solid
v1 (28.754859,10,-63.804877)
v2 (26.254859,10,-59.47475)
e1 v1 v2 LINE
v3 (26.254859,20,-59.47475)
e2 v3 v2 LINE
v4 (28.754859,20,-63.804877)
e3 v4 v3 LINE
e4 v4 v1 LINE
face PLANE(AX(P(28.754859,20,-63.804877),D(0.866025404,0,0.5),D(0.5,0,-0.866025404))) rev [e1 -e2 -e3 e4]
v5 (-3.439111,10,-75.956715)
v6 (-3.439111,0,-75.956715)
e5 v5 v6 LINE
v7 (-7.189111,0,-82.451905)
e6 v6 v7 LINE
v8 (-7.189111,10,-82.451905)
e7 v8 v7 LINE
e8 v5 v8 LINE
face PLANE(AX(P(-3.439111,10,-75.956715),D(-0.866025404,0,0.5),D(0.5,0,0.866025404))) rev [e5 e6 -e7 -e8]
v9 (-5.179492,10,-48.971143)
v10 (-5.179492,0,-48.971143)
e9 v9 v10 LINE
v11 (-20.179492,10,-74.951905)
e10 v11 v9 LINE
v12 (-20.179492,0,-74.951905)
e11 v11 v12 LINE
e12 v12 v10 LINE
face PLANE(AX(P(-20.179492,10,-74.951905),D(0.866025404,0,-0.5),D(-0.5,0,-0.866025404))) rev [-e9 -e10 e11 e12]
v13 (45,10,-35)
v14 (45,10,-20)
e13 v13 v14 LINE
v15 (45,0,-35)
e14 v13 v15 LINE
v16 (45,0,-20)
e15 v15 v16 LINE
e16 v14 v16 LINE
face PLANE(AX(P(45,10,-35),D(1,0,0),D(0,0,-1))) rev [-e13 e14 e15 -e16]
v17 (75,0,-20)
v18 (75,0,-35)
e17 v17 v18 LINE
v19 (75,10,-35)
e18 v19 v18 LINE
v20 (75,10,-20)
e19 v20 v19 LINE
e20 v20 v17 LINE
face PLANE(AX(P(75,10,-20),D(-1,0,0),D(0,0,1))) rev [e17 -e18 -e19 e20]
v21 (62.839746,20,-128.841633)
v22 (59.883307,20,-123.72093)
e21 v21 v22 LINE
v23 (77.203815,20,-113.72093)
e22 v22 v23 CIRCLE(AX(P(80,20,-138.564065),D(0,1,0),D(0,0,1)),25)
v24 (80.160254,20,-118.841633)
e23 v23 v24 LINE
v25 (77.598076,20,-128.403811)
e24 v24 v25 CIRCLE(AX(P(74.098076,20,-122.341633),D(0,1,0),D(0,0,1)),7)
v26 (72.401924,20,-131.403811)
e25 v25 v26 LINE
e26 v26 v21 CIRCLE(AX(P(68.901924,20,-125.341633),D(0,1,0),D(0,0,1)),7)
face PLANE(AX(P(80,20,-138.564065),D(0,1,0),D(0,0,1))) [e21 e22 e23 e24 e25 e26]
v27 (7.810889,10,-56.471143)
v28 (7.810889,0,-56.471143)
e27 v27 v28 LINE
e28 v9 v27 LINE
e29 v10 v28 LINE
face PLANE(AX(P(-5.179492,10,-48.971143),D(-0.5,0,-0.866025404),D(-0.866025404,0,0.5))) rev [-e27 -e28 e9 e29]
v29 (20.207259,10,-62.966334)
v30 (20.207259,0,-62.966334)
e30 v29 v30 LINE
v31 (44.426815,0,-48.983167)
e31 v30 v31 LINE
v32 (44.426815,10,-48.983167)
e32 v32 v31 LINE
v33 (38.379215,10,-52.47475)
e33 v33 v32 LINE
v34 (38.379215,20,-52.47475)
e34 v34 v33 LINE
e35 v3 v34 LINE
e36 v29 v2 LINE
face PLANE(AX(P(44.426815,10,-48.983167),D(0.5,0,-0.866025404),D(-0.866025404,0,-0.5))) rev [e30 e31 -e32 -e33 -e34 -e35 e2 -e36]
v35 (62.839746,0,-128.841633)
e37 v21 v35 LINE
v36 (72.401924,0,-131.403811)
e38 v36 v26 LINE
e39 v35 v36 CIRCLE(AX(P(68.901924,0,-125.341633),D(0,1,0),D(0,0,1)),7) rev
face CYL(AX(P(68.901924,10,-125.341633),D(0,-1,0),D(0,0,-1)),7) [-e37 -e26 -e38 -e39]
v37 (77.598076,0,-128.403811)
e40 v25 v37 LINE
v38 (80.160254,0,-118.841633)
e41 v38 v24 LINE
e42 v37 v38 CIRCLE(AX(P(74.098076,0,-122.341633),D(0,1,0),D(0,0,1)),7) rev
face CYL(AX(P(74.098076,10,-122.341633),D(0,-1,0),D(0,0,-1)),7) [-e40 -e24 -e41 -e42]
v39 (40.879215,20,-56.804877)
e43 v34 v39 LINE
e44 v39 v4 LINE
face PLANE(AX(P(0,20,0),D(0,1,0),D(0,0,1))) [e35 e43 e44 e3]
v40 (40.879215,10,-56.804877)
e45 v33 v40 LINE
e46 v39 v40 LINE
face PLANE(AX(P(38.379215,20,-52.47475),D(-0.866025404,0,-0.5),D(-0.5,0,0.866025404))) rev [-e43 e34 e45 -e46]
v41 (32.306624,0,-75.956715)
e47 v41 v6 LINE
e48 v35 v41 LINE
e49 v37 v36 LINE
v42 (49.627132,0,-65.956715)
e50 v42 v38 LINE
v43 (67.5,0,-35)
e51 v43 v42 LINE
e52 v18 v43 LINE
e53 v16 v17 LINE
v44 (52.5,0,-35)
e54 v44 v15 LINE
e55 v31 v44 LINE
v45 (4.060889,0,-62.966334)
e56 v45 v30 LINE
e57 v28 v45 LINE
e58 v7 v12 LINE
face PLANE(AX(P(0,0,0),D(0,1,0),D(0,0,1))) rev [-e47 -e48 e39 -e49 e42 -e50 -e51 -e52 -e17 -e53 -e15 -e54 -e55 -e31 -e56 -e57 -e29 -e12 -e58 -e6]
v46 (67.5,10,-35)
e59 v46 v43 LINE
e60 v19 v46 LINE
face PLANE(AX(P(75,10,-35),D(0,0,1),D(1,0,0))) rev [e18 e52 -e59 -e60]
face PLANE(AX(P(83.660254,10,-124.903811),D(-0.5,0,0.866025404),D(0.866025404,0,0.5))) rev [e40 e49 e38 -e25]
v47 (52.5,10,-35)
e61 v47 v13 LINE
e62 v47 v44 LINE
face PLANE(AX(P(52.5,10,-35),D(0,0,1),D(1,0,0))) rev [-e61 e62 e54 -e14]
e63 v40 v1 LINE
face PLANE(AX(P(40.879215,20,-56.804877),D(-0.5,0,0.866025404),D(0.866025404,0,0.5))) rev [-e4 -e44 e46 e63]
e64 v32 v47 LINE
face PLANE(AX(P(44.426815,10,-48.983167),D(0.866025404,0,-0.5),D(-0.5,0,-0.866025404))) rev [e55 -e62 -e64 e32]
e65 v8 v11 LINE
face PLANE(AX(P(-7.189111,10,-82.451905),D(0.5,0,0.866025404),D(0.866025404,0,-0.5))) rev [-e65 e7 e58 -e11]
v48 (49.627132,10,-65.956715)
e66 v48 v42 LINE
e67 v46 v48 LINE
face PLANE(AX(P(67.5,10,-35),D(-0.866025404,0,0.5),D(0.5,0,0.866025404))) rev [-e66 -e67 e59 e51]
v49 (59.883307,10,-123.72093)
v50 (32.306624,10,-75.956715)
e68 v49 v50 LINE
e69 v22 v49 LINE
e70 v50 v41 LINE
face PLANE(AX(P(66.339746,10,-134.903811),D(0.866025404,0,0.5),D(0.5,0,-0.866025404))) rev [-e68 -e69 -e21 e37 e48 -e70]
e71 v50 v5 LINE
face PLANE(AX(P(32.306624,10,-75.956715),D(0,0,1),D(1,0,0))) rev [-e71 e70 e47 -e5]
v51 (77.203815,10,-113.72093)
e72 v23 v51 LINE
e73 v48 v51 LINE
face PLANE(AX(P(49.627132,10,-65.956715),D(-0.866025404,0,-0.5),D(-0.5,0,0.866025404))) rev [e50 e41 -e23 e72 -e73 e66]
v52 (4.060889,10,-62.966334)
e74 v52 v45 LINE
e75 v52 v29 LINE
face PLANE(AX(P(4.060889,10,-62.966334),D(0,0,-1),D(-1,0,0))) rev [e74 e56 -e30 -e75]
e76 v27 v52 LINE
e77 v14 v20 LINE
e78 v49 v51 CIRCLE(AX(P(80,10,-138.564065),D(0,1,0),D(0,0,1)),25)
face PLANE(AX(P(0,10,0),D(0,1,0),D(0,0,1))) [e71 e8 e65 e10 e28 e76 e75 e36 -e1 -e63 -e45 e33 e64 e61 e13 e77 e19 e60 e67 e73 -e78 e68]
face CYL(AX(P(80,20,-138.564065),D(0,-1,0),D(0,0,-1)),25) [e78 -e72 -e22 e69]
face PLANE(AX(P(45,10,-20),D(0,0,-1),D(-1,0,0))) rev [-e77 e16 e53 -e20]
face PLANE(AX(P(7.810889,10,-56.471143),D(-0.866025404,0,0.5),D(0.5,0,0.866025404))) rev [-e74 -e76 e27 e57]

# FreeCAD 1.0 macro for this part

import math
import FreeCAD as App
import Part
import Sketcher
Q = App.Units.Quantity


def edges_at(feature, points):
    """Names of the edges that pass closest to the given points."""
    edges = feature.Shape.Edges
    near = lambda p: min(range(len(edges)), key=lambda i: edges[i].distToShape(Part.Vertex(*p))[0])
    return sorted({f"Edge{near(p) + 1}" for p in points})

doc = App.newDocument("Part")
body = doc.addObject("PartDesign::Body", "Body")

# Sketch on XZ plane
sketch1 = doc.addObject("Sketcher::SketchObject", "Sketch")
body.addObject(sketch1)
sketch1.AttachmentSupport = (doc.XZ_Plane, [""])
sketch1.MapMode = "FlatFace"
sketch1.addGeometry([
    Part.LineSegment(App.Vector(-20.179492, -74.951905, 0), App.Vector(-5.179492, -48.971143, 0)),  # 0
    Part.LineSegment(App.Vector(-5.179492, -48.971143, 0), App.Vector(7.810889, -56.471143, 0)),  # 1
    Part.LineSegment(App.Vector(7.810889, -56.471143, 0), App.Vector(4.060889, -62.966334, 0)),  # 2
    Part.LineSegment(App.Vector(4.060889, -62.966334, 0), App.Vector(20.207259, -62.966334, 0)),  # 3
    Part.LineSegment(App.Vector(20.207259, -62.966334, 0), App.Vector(44.426815, -48.983167, 0)),  # 4
    Part.LineSegment(App.Vector(44.426815, -48.983167, 0), App.Vector(52.5, -35, 0)),  # 5
    Part.LineSegment(App.Vector(52.5, -35, 0), App.Vector(45, -35, 0)),  # 6
    Part.LineSegment(App.Vector(45, -35, 0), App.Vector(45, -20, 0)),  # 7
    Part.LineSegment(App.Vector(45, -20, 0), App.Vector(75, -20, 0)),  # 8
    Part.LineSegment(App.Vector(75, -20, 0), App.Vector(75, -35, 0)),  # 9
    Part.LineSegment(App.Vector(75, -35, 0), App.Vector(67.5, -35, 0)),  # 10
    Part.LineSegment(App.Vector(67.5, -35, 0), App.Vector(49.627132, -65.956715, 0)),  # 11
    Part.LineSegment(App.Vector(49.627132, -65.956715, 0), App.Vector(83.660254, -124.903811, 0)),  # 12
    Part.LineSegment(App.Vector(83.660254, -124.903811, 0), App.Vector(66.339746, -134.903811, 0)),  # 13
    Part.LineSegment(App.Vector(66.339746, -134.903811, 0), App.Vector(32.306624, -75.956715, 0)),  # 14
    Part.LineSegment(App.Vector(32.306624, -75.956715, 0), App.Vector(-3.439111, -75.956715, 0)),  # 15
    Part.LineSegment(App.Vector(-3.439111, -75.956715, 0), App.Vector(-7.189111, -82.451905, 0)),  # 16
    Part.LineSegment(App.Vector(-7.189111, -82.451905, 0), App.Vector(-20.179492, -74.951905, 0)),  # 17
], False)
sketch1.addConstraint([
    Sketcher.Constraint("Coincident", 0, 2, 1, 1),
    Sketcher.Constraint("Coincident", 1, 2, 2, 1),
    Sketcher.Constraint("Coincident", 2, 2, 3, 1),
    Sketcher.Constraint("Coincident", 3, 2, 4, 1),
    Sketcher.Constraint("Coincident", 4, 2, 5, 1),
    Sketcher.Constraint("Coincident", 5, 2, 6, 1),
    Sketcher.Constraint("Coincident", 6, 2, 7, 1),
    Sketcher.Constraint("Coincident", 7, 2, 8, 1),
    Sketcher.Constraint("Coincident", 8, 2, 9, 1),
    Sketcher.Constraint("Coincident", 9, 2, 10, 1),
    Sketcher.Constraint("Coincident", 10, 2, 11, 1),
    Sketcher.Constraint("Coincident", 11, 2, 12, 1),
    Sketcher.Constraint("Coincident", 12, 2, 13, 1),
    Sketcher.Constraint("Coincident", 13, 2, 14, 1),
    Sketcher.Constraint("Coincident", 14, 2, 15, 1),
    Sketcher.Constraint("Coincident", 15, 2, 16, 1),
    Sketcher.Constraint("Coincident", 16, 2, 17, 1),
    Sketcher.Constraint("Coincident", 17, 2, 0, 1),
    Sketcher.Constraint("Horizontal", 3),
    Sketcher.Constraint("Horizontal", 6),
    Sketcher.Constraint("Vertical", 7),
    Sketcher.Constraint("Horizontal", 8),
    Sketcher.Constraint("Vertical", 9),
    Sketcher.Constraint("Horizontal", 10),
    Sketcher.Constraint("Horizontal", 15),
    Sketcher.Constraint("Perpendicular", 0, 1),
    Sketcher.Constraint("Perpendicular", 1, 2),
    Sketcher.Constraint("Parallel", 2, 5),
    Sketcher.Constraint("Parallel", 5, 11),
    Sketcher.Constraint("Perpendicular", 4, 12),
    Sketcher.Constraint("Perpendicular", 12, 13),
    Sketcher.Constraint("Perpendicular", 13, 14),
    Sketcher.Constraint("Parallel", 11, 16),
    Sketcher.Constraint("Perpendicular", 16, 17),
    Sketcher.Constraint("Horizontal", 6, 2, 9, 2),
    Sketcher.Constraint("Equal", 6, 10),
    Sketcher.Constraint("Equal", 12, 14),
    Sketcher.Constraint("Equal", 2, 16),
    Sketcher.Constraint("Equal", 1, 17),
    Sketcher.Constraint("DistanceX", 8, 1, 8, 2, 30.0),
    Sketcher.Constraint("DistanceY", 7, 1, 7, 2, 15.0),
    Sketcher.Constraint("Angle", 0, Q("60 deg")),
    Sketcher.Constraint("Angle", 4, Q("30 deg")),
    Sketcher.Constraint("Distance", 0, 30.0),
    Sketcher.Constraint("Distance", 1, 15.0),
    Sketcher.Constraint("Distance", 13, 20.0),
    Sketcher.Constraint("DistanceX", 6, 2, 6, 1, 7.5),
    Sketcher.Constraint("DistanceY", 5, 2, -1, 1, 35.0),
    Sketcher.Constraint("DistanceX", -1, 1, 6, 2, 45.0),
    Sketcher.Constraint("Distance", 2, 7.5),
    Sketcher.Constraint("DistanceX", 3, 1, 3, 2, 16.14637),
    Sketcher.Constraint("Distance", 5, 16.14637),
    Sketcher.Constraint("DistanceX", 15, 2, 15, 1, 35.745735),
    Sketcher.Constraint("DistanceY", 12, 2, -1, 1, 124.903811),
])
pad1 = doc.addObject("PartDesign::Pad", "Pad")
body.addObject(pad1)
pad1.Profile = sketch1
pad1.Length = 10
pad1.Reversed = True

# Sketch on XZ plane
sketch2 = doc.addObject("Sketcher::SketchObject", "Sketch001")
body.addObject(sketch2)
sketch2.AttachmentSupport = (doc.XZ_Plane, [""])
sketch2.MapMode = "FlatFace"
sketch2.AttachmentOffset = App.Placement(App.Vector(0, 0, -10), App.Rotation())
sketch2.addGeometry([
    Part.LineSegment(App.Vector(66.339746, -134.903811, 0), App.Vector(59.883307, -123.72093, 0)),
    Part.ArcOfCircle(Part.Circle(App.Vector(80, -138.564065, 0), App.Vector(0, 0, 1), 25), math.radians(96.421822), math.radians(143.578178)),
    Part.LineSegment(App.Vector(77.203815, -113.72093, 0), App.Vector(83.660254, -124.903811, 0)),
    Part.LineSegment(App.Vector(83.660254, -124.903811, 0), App.Vector(66.339746, -134.903811, 0)),
], False)
sketch2.addConstraint([
    Sketcher.Constraint("Coincident", 0, 2, 1, 2),
    Sketcher.Constraint("Coincident", 1, 1, 2, 1),
    Sketcher.Constraint("Coincident", 2, 2, 3, 1),
    Sketcher.Constraint("Coincident", 3, 2, 0, 1),
    Sketcher.Constraint("Parallel", 0, 2),
    Sketcher.Constraint("Perpendicular", 2, 3),
    Sketcher.Constraint("Equal", 0, 2),
    Sketcher.Constraint("Radius", 1, 25.0),
    Sketcher.Constraint("Angle", 0, Q("120 deg")),
    Sketcher.Constraint("Distance", 3, 20.0),
    Sketcher.Constraint("DistanceX", -1, 1, 1, 3, 80.0),
    Sketcher.Constraint("Distance", 0, 12.912878),
    Sketcher.Constraint("DistanceY", 0, 2, -1, 1, 123.72093),
])
pad2 = doc.addObject("PartDesign::Pad", "Pad001")
body.addObject(pad2)
pad2.Profile = sketch2
pad2.Length = 10
pad2.Reversed = True

# Sketch on XZ plane
sketch3 = doc.addObject("Sketcher::SketchObject", "Sketch002")
body.addObject(sketch3)
sketch3.AttachmentSupport = (doc.XZ_Plane, [""])
sketch3.MapMode = "FlatFace"
sketch3.AttachmentOffset = App.Placement(App.Vector(0, 0, -10), App.Rotation())
sketch3.addGeometry([
    Part.LineSegment(App.Vector(38.379215, -52.47475, 0), App.Vector(40.879215, -56.804877, 0)),
    Part.LineSegment(App.Vector(40.879215, -56.804877, 0), App.Vector(28.754859, -63.804877, 0)),
    Part.LineSegment(App.Vector(28.754859, -63.804877, 0), App.Vector(26.254859, -59.47475, 0)),
    Part.LineSegment(App.Vector(26.254859, -59.47475, 0), App.Vector(38.379215, -52.47475, 0)),
], False)
sketch3.addConstraint([
    Sketcher.Constraint("Coincident", 0, 2, 1, 1),
    Sketcher.Constraint("Coincident", 1, 2, 2, 1),
    Sketcher.Constraint("Coincident", 2, 2, 3, 1),
    Sketcher.Constraint("Coincident", 3, 2, 0, 1),
    Sketcher.Constraint("Perpendicular", 0, 1),
    Sketcher.Constraint("Perpendicular", 1, 2),
    Sketcher.Constraint("Perpendicular", 2, 3),
    Sketcher.Constraint("Angle", 0, Q("-60 deg")),
    Sketcher.Constraint("Distance", 0, 5.0),
    Sketcher.Constraint("Distance", 1, 14.0),
    Sketcher.Constraint("DistanceX", -1, 1, 1, 2, 28.754859),
    Sketcher.Constraint("DistanceY", 2, 2, -1, 1, 59.47475),
])
pad3 = doc.addObject("PartDesign::Pad", "Pad002")
body.addObject(pad3)
pad3.Profile = sketch3
pad3.Length = 10
pad3.Reversed = True
doc.recompute()

fillet = doc.addObject("PartDesign::Fillet", "Fillet")
body.addObject(fillet)
fillet.Base = (pad3, edges_at(pad3, [(66.34, 15, -134.904), (83.66, 15, -124.904)]))
fillet.Radius = 7

doc.recompute()
